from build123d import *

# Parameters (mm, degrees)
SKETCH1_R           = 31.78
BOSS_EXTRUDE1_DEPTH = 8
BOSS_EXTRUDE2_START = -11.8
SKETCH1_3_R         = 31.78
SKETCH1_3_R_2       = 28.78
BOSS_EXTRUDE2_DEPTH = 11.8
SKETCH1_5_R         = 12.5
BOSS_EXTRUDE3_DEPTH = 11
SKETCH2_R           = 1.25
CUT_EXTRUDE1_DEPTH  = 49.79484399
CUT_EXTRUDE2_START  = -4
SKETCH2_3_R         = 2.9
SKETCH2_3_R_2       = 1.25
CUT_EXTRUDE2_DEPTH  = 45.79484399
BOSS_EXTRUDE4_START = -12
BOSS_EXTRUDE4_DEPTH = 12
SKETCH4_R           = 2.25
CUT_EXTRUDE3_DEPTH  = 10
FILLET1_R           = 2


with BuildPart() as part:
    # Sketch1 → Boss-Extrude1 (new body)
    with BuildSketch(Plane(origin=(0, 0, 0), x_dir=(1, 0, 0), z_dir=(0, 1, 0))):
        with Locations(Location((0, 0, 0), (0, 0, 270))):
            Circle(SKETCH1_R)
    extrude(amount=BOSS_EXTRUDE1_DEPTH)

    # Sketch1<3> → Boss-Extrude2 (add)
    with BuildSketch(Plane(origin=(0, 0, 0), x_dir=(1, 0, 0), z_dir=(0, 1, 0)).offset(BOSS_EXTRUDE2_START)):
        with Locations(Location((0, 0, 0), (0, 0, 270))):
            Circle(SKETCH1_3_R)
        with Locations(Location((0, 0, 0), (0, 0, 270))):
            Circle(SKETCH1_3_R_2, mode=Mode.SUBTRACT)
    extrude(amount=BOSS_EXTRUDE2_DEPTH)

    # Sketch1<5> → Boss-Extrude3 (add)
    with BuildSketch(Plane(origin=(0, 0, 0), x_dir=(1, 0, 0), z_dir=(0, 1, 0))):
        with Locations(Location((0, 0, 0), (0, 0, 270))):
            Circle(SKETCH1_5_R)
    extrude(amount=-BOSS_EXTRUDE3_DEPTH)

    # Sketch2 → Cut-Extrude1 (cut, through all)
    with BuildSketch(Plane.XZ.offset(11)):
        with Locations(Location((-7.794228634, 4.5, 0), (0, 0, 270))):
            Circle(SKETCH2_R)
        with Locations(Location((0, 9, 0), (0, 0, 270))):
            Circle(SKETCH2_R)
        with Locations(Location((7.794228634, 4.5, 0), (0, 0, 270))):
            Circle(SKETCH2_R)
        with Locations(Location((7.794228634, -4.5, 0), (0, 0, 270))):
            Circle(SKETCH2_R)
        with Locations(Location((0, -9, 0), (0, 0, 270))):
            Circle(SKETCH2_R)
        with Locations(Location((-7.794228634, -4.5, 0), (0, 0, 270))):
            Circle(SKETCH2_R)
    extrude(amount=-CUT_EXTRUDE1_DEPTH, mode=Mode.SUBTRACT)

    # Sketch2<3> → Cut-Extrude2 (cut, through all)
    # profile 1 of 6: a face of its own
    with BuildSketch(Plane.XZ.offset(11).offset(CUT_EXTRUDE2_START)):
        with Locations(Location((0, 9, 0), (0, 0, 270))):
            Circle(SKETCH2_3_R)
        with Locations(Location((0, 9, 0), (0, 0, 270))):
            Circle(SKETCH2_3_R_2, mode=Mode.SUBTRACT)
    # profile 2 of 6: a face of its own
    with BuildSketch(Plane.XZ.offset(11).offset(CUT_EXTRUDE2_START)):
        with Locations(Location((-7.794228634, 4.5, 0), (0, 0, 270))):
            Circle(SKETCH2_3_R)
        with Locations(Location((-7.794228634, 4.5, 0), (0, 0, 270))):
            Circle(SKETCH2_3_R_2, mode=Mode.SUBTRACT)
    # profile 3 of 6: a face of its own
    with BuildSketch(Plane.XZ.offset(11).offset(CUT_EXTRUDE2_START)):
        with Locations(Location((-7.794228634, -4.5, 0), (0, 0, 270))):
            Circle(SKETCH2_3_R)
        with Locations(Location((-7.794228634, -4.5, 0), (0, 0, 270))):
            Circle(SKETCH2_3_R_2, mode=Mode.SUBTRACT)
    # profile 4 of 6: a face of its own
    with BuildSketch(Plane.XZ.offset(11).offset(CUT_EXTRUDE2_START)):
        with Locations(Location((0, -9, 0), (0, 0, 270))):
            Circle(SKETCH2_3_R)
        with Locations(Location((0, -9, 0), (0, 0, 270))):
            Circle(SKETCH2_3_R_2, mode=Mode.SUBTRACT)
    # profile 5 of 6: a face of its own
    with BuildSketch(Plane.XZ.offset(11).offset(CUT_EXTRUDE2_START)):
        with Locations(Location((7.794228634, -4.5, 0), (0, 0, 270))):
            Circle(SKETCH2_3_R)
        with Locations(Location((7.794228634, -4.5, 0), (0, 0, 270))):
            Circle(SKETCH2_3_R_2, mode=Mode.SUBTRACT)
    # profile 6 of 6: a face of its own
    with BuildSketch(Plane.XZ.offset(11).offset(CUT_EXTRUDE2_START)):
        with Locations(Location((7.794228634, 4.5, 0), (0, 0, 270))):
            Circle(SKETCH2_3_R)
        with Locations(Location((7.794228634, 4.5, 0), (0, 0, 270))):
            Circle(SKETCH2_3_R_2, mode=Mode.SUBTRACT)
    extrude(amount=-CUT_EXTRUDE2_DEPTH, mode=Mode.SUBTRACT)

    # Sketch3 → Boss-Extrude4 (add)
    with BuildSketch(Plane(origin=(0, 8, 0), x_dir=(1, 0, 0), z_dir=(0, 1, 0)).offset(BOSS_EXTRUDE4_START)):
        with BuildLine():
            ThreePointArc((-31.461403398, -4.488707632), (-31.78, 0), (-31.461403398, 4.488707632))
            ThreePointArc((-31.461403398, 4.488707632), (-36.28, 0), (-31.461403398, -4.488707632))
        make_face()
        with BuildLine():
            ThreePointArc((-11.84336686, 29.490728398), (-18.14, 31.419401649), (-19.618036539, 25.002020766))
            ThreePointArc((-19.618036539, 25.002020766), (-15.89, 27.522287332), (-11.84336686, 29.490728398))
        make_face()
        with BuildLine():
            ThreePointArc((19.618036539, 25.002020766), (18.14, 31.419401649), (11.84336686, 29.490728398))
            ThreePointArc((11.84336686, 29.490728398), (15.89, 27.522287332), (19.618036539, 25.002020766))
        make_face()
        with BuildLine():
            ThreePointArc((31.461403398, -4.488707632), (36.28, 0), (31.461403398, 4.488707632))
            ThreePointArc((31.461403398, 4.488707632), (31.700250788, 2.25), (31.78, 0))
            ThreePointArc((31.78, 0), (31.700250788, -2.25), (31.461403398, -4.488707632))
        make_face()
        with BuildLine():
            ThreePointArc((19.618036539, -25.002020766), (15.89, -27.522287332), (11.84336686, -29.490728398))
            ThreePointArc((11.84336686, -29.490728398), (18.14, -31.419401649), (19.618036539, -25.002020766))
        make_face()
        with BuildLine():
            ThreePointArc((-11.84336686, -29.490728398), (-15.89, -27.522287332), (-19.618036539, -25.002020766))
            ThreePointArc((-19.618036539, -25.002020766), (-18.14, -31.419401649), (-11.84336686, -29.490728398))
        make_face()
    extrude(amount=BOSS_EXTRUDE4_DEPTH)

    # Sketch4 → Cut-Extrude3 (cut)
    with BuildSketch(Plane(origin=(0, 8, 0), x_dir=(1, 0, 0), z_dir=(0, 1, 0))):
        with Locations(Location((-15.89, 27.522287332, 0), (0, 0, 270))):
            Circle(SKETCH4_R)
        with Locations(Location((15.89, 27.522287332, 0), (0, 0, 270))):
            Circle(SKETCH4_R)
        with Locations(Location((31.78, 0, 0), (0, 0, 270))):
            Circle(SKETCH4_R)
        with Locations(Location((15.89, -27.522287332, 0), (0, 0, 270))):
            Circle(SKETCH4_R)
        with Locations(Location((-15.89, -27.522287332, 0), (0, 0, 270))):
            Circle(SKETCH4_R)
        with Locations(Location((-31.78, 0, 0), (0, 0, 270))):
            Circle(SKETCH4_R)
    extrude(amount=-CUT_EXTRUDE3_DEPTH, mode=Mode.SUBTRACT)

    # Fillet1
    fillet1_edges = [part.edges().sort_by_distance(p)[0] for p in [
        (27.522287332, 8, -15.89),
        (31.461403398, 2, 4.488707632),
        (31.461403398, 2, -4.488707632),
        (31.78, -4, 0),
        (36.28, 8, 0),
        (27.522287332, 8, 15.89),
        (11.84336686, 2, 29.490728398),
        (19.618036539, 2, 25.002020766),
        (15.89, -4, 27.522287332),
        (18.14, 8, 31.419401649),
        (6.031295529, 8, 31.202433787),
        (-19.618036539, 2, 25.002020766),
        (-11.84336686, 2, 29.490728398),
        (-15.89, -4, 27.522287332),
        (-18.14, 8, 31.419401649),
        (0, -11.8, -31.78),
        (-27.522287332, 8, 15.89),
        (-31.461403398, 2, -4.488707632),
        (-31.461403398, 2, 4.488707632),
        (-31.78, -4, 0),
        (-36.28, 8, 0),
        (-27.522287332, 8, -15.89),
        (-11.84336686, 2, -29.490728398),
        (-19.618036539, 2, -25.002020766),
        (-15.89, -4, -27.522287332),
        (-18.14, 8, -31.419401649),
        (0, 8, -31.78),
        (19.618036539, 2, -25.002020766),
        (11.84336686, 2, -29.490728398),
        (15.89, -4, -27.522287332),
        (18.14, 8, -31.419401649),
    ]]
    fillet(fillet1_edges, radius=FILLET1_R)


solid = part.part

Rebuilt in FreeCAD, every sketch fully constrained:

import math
import FreeCAD as App
import Part
import Sketcher
Q = App.Units.Quantity


def edges_at(feature, points):
    """Names of the edges that pass closest to the given points."""
    edges = feature.Shape.Edges
    near = lambda p: min(range(len(edges)), key=lambda i: edges[i].distToShape(Part.Vertex(*p))[0])
    return sorted({f"Edge{near(p) + 1}" for p in points})

doc = App.newDocument("Part")
body = doc.addObject("PartDesign::Body", "Body")

# Sketch on XZ plane
sketch1 = body.newObject("Sketcher::SketchObject", "Sketch")
sketch1.AttachmentSupport = (doc.getObject("XZ_Plane"), [""])
sketch1.MapMode = "FlatFace"
sketch1.addGeometry(Part.Circle(App.Vector(0, 0, 0), App.Vector(0, 0, 1), 32), False)
sketch1.addConstraint(Sketcher.Constraint("Coincident", 0, 3, -1, 1))
sketch1.addConstraint(Sketcher.Constraint("Diameter", 0, Q("63.56 mm")))
pad1 = body.newObject("PartDesign::Pad", "Pad")
pad1.Profile = sketch1
pad1.Length = 8
pad1.Reversed = True

# Sketch on XZ plane
sketch2 = body.newObject("Sketcher::SketchObject", "Sketch001")
sketch2.AttachmentSupport = (doc.getObject("XZ_Plane"), [""])
sketch2.MapMode = "FlatFace"
sketch2.AttachmentOffset = App.Placement(App.Vector(0, 0, 11.8), App.Rotation())
sketch2.addGeometry(Part.Circle(App.Vector(0, 0, 0), App.Vector(0, 0, 1), 32), False)
sketch2.addGeometry(Part.Circle(App.Vector(0, 0, 0), App.Vector(0, 0, 1), 29), False)
sketch2.addConstraint(Sketcher.Constraint("Coincident", 0, 3, -1, 1))
sketch2.addConstraint(Sketcher.Constraint("Coincident", 1, 3, -1, 1))
sketch2.addConstraint(Sketcher.Constraint("Diameter", 0, Q("63.56 mm")))
sketch2.addConstraint(Sketcher.Constraint("Diameter", 1, Q("57.56 mm")))
pad2 = body.newObject("PartDesign::Pad", "Pad001")
pad2.Profile = sketch2
pad2.Length = 11.8
pad2.Reversed = True

# Sketch on XZ plane
sketch3 = body.newObject("Sketcher::SketchObject", "Sketch002")
sketch3.AttachmentSupport = (doc.getObject("XZ_Plane"), [""])
sketch3.MapMode = "FlatFace"
sketch3.addGeometry(Part.Circle(App.Vector(0, 0, 0), App.Vector(0, 0, 1), 12), False)
sketch3.addConstraint(Sketcher.Constraint("Coincident", 0, 3, -1, 1))
sketch3.addConstraint(Sketcher.Constraint("Diameter", 0, Q("25 mm")))
pad3 = body.newObject("PartDesign::Pad", "Pad002")
pad3.Profile = sketch3
pad3.Length = 11

# Sketch on XZ plane
sketch4 = body.newObject("Sketcher::SketchObject", "Sketch003")
sketch4.AttachmentSupport = (doc.getObject("XZ_Plane"), [""])
sketch4.MapMode = "FlatFace"
sketch4.AttachmentOffset = App.Placement(App.Vector(0, 0, 11), App.Rotation())
sketch4.addGeometry(Part.Circle(App.Vector(-7.8, 4.5, 0), App.Vector(0, 0, 1), 1.2), False)
sketch4.addGeometry(Part.Circle(App.Vector(0, 9, 0), App.Vector(0, 0, 1), 1.2), False)
sketch4.addGeometry(Part.Circle(App.Vector(7.8, 4.5, 0), App.Vector(0, 0, 1), 1.2), False)
sketch4.addGeometry(Part.Circle(App.Vector(7.8, -4.5, 0), App.Vector(0, 0, 1), 1.2), False)
sketch4.addGeometry(Part.Circle(App.Vector(0, -9, 0), App.Vector(0, 0, 1), 1.2), False)
sketch4.addGeometry(Part.Circle(App.Vector(-7.8, -4.5, 0), App.Vector(0, 0, 1), 1.2), False)
sketch4.addConstraint(Sketcher.Constraint("Equal", 0, 1))
sketch4.addConstraint(Sketcher.Constraint("Equal", 1, 2))
sketch4.addConstraint(Sketcher.Constraint("Equal", 2, 3))
sketch4.addConstraint(Sketcher.Constraint("Equal", 3, 4))
sketch4.addConstraint(Sketcher.Constraint("Equal", 4, 5))
sketch4.addConstraint(Sketcher.Constraint("Symmetric", 0, 3, 3, 3, -1, 1))
sketch4.addConstraint(Sketcher.Constraint("Symmetric", 1, 3, 4, 3, -1, 1))
sketch4.addConstraint(Sketcher.Constraint("Symmetric", 2, 3, 5, 3, -1, 1))
sketch4.addConstraint(Sketcher.Constraint("Symmetric", 0, 3, 2, 3, -2))
sketch4.addConstraint(Sketcher.Constraint("PointOnObject", 1, 3, -2))
sketch4.addConstraint(Sketcher.Constraint("Diameter", 0, Q("2.5 mm")))
sketch4.addConstraint(Sketcher.Constraint("DistanceY", -1, 1, 1, 3, Q("9 mm")))
sketch4.addConstraint(Sketcher.Constraint("DistanceY", 3, 3, 2, 3, Q("9 mm")))
sketch4.addConstraint(Sketcher.Constraint("DistanceX", 0, 3, -1, 1, Q("7.794229 mm")))
pocket1 = body.newObject("PartDesign::Pocket", "Pocket")
pocket1.Profile = sketch4
pocket1.Type = "ThroughAll"

# Sketch on XZ plane
sketch5 = body.newObject("Sketcher::SketchObject", "Sketch004")
sketch5.AttachmentSupport = (doc.getObject("XZ_Plane"), [""])
sketch5.MapMode = "FlatFace"
sketch5.AttachmentOffset = App.Placement(App.Vector(0, 0, 7), App.Rotation())
sketch5.addGeometry(Part.Circle(App.Vector(0, 9, 0), App.Vector(0, 0, 1), 2.9), False)
sketch5.addGeometry(Part.Circle(App.Vector(0, 9, 0), App.Vector(0, 0, 1), 1.2), False)
sketch5.addGeometry(Part.Circle(App.Vector(-7.8, 4.5, 0), App.Vector(0, 0, 1), 2.9), False)
sketch5.addGeometry(Part.Circle(App.Vector(-7.8, 4.5, 0), App.Vector(0, 0, 1), 1.2), False)
sketch5.addGeometry(Part.Circle(App.Vector(-7.8, -4.5, 0), App.Vector(0, 0, 1), 2.9), False)
sketch5.addGeometry(Part.Circle(App.Vector(-7.8, -4.5, 0), App.Vector(0, 0, 1), 1.2), False)
sketch5.addGeometry(Part.Circle(App.Vector(0, -9, 0), App.Vector(0, 0, 1), 2.9), False)
sketch5.addGeometry(Part.Circle(App.Vector(0, -9, 0), App.Vector(0, 0, 1), 1.2), False)
sketch5.addGeometry(Part.Circle(App.Vector(7.8, -4.5, 0), App.Vector(0, 0, 1), 2.9), False)
sketch5.addGeometry(Part.Circle(App.Vector(7.8, -4.5, 0), App.Vector(0, 0, 1), 1.2), False)
sketch5.addGeometry(Part.Circle(App.Vector(7.8, 4.5, 0), App.Vector(0, 0, 1), 2.9), False)
sketch5.addGeometry(Part.Circle(App.Vector(7.8, 4.5, 0), App.Vector(0, 0, 1), 1.2), False)
sketch5.addConstraint(Sketcher.Constraint("Coincident", 1, 3, 0, 3))
sketch5.addConstraint(Sketcher.Constraint("Coincident", 3, 3, 2, 3))
sketch5.addConstraint(Sketcher.Constraint("Coincident", 5, 3, 4, 3))
sketch5.addConstraint(Sketcher.Constraint("Coincident", 7, 3, 6, 3))
sketch5.addConstraint(Sketcher.Constraint("Coincident", 9, 3, 8, 3))
sketch5.addConstraint(Sketcher.Constraint("Coincident", 11, 3, 10, 3))
sketch5.addConstraint(Sketcher.Constraint("Equal", 0, 2))
sketch5.addConstraint(Sketcher.Constraint("Equal", 1, 3))
sketch5.addConstraint(Sketcher.Constraint("Equal", 2, 4))
sketch5.addConstraint(Sketcher.Constraint("Equal", 3, 5))
sketch5.addConstraint(Sketcher.Constraint("Equal", 4, 6))
sketch5.addConstraint(Sketcher.Constraint("Equal", 5, 7))
sketch5.addConstraint(Sketcher.Constraint("Equal", 6, 8))
sketch5.addConstraint(Sketcher.Constraint("Equal", 7, 9))
sketch5.addConstraint(Sketcher.Constraint("Equal", 8, 10))
sketch5.addConstraint(Sketcher.Constraint("Equal", 9, 11))
sketch5.addConstraint(Sketcher.Constraint("Symmetric", 0, 3, 6, 3, -1, 1))
sketch5.addConstraint(Sketcher.Constraint("Symmetric", 2, 3, 8, 3, -1, 1))
sketch5.addConstraint(Sketcher.Constraint("Symmetric", 4, 3, 10, 3, -1, 1))
sketch5.addConstraint(Sketcher.Constraint("Symmetric", 4, 3, 8, 3, -2))
sketch5.addConstraint(Sketcher.Constraint("PointOnObject", 0, 3, -2))
sketch5.addConstraint(Sketcher.Constraint("Diameter", 0, Q("5.8 mm")))
sketch5.addConstraint(Sketcher.Constraint("Diameter", 1, Q("2.5 mm")))
sketch5.addConstraint(Sketcher.Constraint("DistanceY", -1, 1, 0, 3, Q("9 mm")))
sketch5.addConstraint(Sketcher.Constraint("DistanceY", 4, 3, 2, 3, Q("9 mm")))
sketch5.addConstraint(Sketcher.Constraint("DistanceX", 2, 3, -1, 1, Q("7.794229 mm")))
pocket2 = body.newObject("PartDesign::Pocket", "Pocket001")
pocket2.Profile = sketch5
pocket2.Length = 45.794844

# Sketch on XZ plane
sketch6 = body.newObject("Sketcher::SketchObject", "Sketch005")
sketch6.AttachmentSupport = (doc.getObject("XZ_Plane"), [""])
sketch6.MapMode = "FlatFace"
sketch6.AttachmentOffset = App.Placement(App.Vector(0, 0, 4), App.Rotation())
sketch6.addGeometry(Part.ArcOfCircle(Part.Circle(App.Vector(0, 0, 0), App.Vector(0, 0, 1), 31.8), math.radians(171.88), math.radians(188.12)), False)
sketch6.addGeometry(Part.ArcOfCircle(Part.Circle(App.Vector(-31.8, 0, 0), App.Vector(0, 0, 1), 4.5), math.radians(86), math.radians(274)), False)
sketch6.addGeometry(Part.ArcOfCircle(Part.Circle(App.Vector(-15.9, -27.5, 0), App.Vector(0, 0, 1), 4.5), math.radians(146), math.radians(334)), False)
sketch6.addGeometry(Part.ArcOfCircle(Part.Circle(App.Vector(0, 0, 0), App.Vector(0, 0, 1), 31.8), math.radians(-128.12), math.radians(-111.88)), False)
sketch6.addGeometry(Part.ArcOfCircle(Part.Circle(App.Vector(15.9, -27.5, 0), App.Vector(0, 0, 1), 4.5), math.radians(-154), math.radians(34)), False)
sketch6.addGeometry(Part.ArcOfCircle(Part.Circle(App.Vector(0, 0, 0), App.Vector(0, 0, 1), 31.8), math.radians(-68.12), math.radians(-51.88)), False)
sketch6.addGeometry(Part.ArcOfCircle(Part.Circle(App.Vector(31.8, 0, 0), App.Vector(0, 0, 1), 4.5), math.radians(-94), math.radians(94)), False)
sketch6.addGeometry(Part.ArcOfCircle(Part.Circle(App.Vector(0, 0, 0), App.Vector(0, 0, 1), 31.8), math.radians(-8.12), math.radians(0)), False)
sketch6.addGeometry(Part.ArcOfCircle(Part.Circle(App.Vector(0, 0, 0), App.Vector(0, 0, 1), 31.8), math.radians(0), math.radians(8.12)), False)
sketch6.addGeometry(Part.ArcOfCircle(Part.Circle(App.Vector(0, 0, 0), App.Vector(0, 0, 1), 31.8), math.radians(51.88), math.radians(68.12)), False)
sketch6.addGeometry(Part.ArcOfCircle(Part.Circle(App.Vector(15.9, 27.5, 0), App.Vector(0, 0, 1), 4.5), math.radians(-34), math.radians(154)), False)
sketch6.addGeometry(Part.ArcOfCircle(Part.Circle(App.Vector(0, 0, 0), App.Vector(0, 0, 1), 31.8), math.radians(111.88), math.radians(128.12)), False)
sketch6.addGeometry(Part.ArcOfCircle(Part.Circle(App.Vector(-15.9, 27.5, 0), App.Vector(0, 0, 1), 4.5), math.radians(26), math.radians(214)), False)
sketch6.addConstraint(Sketcher.Constraint("Coincident", 0, 1, 1, 1))
sketch6.addConstraint(Sketcher.Constraint("Coincident", 1, 2, 0, 2))
sketch6.addConstraint(Sketcher.Constraint("Coincident", 2, 1, 3, 1))
sketch6.addConstraint(Sketcher.Constraint("Coincident", 3, 2, 2, 2))
sketch6.addConstraint(Sketcher.Constraint("Coincident", 4, 1, 5, 1))
sketch6.addConstraint(Sketcher.Constraint("Coincident", 5, 2, 4, 2))
sketch6.addConstraint(Sketcher.Constraint("Coincident", 6, 1, 7, 1))
sketch6.addConstraint(Sketcher.Constraint("Tangent", 7, 2, 8, 1))
sketch6.addConstraint(Sketcher.Constraint("Coincident", 8, 2, 6, 2))
sketch6.addConstraint(Sketcher.Constraint("Coincident", 9, 1, 10, 1))
sketch6.addConstraint(Sketcher.Constraint("Coincident", 10, 2, 9, 2))
sketch6.addConstraint(Sketcher.Constraint("Coincident", 11, 1, 12, 1))
sketch6.addConstraint(Sketcher.Constraint("Coincident", 12, 2, 11, 2))
sketch6.addConstraint(Sketcher.Constraint("Coincident", 0, 3, -1, 1))
sketch6.addConstraint(Sketcher.Constraint("Coincident", 3, 3, -1, 1))
sketch6.addConstraint(Sketcher.Constraint("Coincident", 5, 3, -1, 1))
sketch6.addConstraint(Sketcher.Constraint("Coincident", 7, 3, -1, 1))
sketch6.addConstraint(Sketcher.Constraint("Coincident", 9, 3, -1, 1))
sketch6.addConstraint(Sketcher.Constraint("Coincident", 11, 3, -1, 1))
sketch6.addConstraint(Sketcher.Constraint("Coincident", 7, 2, 6, 3))
sketch6.addConstraint(Sketcher.Constraint("Equal", 1, 2))
sketch6.addConstraint(Sketcher.Constraint("Equal", 0, 3))
sketch6.addConstraint(Sketcher.Constraint("Equal", 2, 4))
sketch6.addConstraint(Sketcher.Constraint("Equal", 3, 5))
sketch6.addConstraint(Sketcher.Constraint("Equal", 4, 6))
sketch6.addConstraint(Sketcher.Constraint("Equal", 5, 7))
sketch6.addConstraint(Sketcher.Constraint("Equal", 7, 8))
sketch6.addConstraint(Sketcher.Constraint("Equal", 8, 9))
sketch6.addConstraint(Sketcher.Constraint("Equal", 6, 10))
sketch6.addConstraint(Sketcher.Constraint("Equal", 9, 11))
sketch6.addConstraint(Sketcher.Constraint("Equal", 10, 12))
sketch6.addConstraint(Sketcher.Constraint("Symmetric", 1, 3, 6, 3, -1, 1))
sketch6.addConstraint(Sketcher.Constraint("Symmetric", 2, 3, 10, 3, -1, 1))
sketch6.addConstraint(Sketcher.Constraint("Symmetric", 4, 3, 12, 3, -1, 1))
sketch6.addConstraint(Sketcher.Constraint("Symmetric", 2, 3, 4, 3, -2))
sketch6.addConstraint(Sketcher.Constraint("PointOnObject", 1, 3, -1))
sketch6.addConstraint(Sketcher.Constraint("Radius", 1, Q("4.5 mm")))
sketch6.addConstraint(Sketcher.Constraint("Radius", 0, Q("31.78 mm")))
sketch6.addConstraint(Sketcher.Constraint("DistanceX", 2, 3, -1, 1, Q("15.89 mm")))
sketch6.addConstraint(Sketcher.Constraint("DistanceY", 2, 1, -1, 1, Q("25.002021 mm")))
pad4 = body.newObject("PartDesign::Pad", "Pad003")
pad4.Profile = sketch6
pad4.Length = 12
pad4.Reversed = True

# Sketch on XZ plane
sketch7 = body.newObject("Sketcher::SketchObject", "Sketch006")
sketch7.AttachmentSupport = (doc.getObject("XZ_Plane"), [""])
sketch7.MapMode = "FlatFace"
sketch7.AttachmentOffset = App.Placement(App.Vector(0, 0, -8), App.Rotation())
sketch7.addGeometry(Part.Circle(App.Vector(-15.9, -27.5, 0), App.Vector(0, 0, 1), 2.2), False)
sketch7.addGeometry(Part.Circle(App.Vector(15.9, -27.5, 0), App.Vector(0, 0, 1), 2.2), False)
sketch7.addGeometry(Part.Circle(App.Vector(31.8, 0, 0), App.Vector(0, 0, 1), 2.2), False)
sketch7.addGeometry(Part.Circle(App.Vector(15.9, 27.5, 0), App.Vector(0, 0, 1), 2.2), False)
sketch7.addGeometry(Part.Circle(App.Vector(-15.9, 27.5, 0), App.Vector(0, 0, 1), 2.2), False)
sketch7.addGeometry(Part.Circle(App.Vector(-31.8, 0, 0), App.Vector(0, 0, 1), 2.2), False)
sketch7.addConstraint(Sketcher.Constraint("Equal", 0, 1))
sketch7.addConstraint(Sketcher.Constraint("Equal", 1, 2))
sketch7.addConstraint(Sketcher.Constraint("Equal", 2, 3))
sketch7.addConstraint(Sketcher.Constraint("Equal", 3, 4))
sketch7.addConstraint(Sketcher.Constraint("Equal", 4, 5))
sketch7.addConstraint(Sketcher.Constraint("Symmetric", 0, 3, 3, 3, -1, 1))
sketch7.addConstraint(Sketcher.Constraint("Symmetric", 1, 3, 4, 3, -1, 1))
sketch7.addConstraint(Sketcher.Constraint("Symmetric", 2, 3, 5, 3, -1, 1))
sketch7.addConstraint(Sketcher.Constraint("Symmetric", 0, 3, 1, 3, -2))
sketch7.addConstraint(Sketcher.Constraint("PointOnObject", 2, 3, -1))
sketch7.addConstraint(Sketcher.Constraint("Diameter", 0, Q("4.5 mm")))
sketch7.addConstraint(Sketcher.Constraint("DistanceX", 0, 3, -1, 1, Q("15.89 mm")))
sketch7.addConstraint(Sketcher.Constraint("DistanceX", -1, 1, 2, 3, Q("31.78 mm")))
sketch7.addConstraint(Sketcher.Constraint("DistanceY", 0, 3, -1, 1, Q("27.522287 mm")))
pocket3 = body.newObject("PartDesign::Pocket", "Pocket002")
pocket3.Profile = sketch7
pocket3.Length = 10
pocket3.Reversed = True
doc.recompute()

fillet = body.newObject("PartDesign::Fillet", "Fillet")
fillet.Base = (pocket3, edges_at(pocket3, [
    (27.522, 8, -15.89),
    (31.461, 2, 4.489),
    (31.461, 2, -4.489),
    (31.7, -4, -2.25),
    (36.28, 8, 0),
    (27.522, 8, 15.89),
    (11.843, 2, 29.491),
    (19.618, 2, 25.002),
    (15.89, -4, 27.522),
    (18.14, 8, 31.419),
    (6.031, 8, 31.202),
    (-19.618, 2, 25.002),
    (-11.843, 2, 29.491),
    (-15.89, -4, 27.522),
    (-18.14, 8, 31.419),
    (0, -11.8, -31.78),
    (-27.522, 8, 15.89),
    (-31.461, 2, -4.489),
    (-31.461, 2, 4.489),
    (-31.78, -4, 0),
    (-36.28, 8, 0),
    (-27.522, 8, -15.89),
    (-11.843, 2, -29.491),
    (-19.618, 2, -25.002),
    (-15.89, -4, -27.522),
    (-18.14, 8, -31.419),
    (0, 8, -31.78),
    (19.618, 2, -25.002),
    (11.843, 2, -29.491),
    (15.89, -4, -27.522),
    (18.14, 8, -31.419),
]))
fillet.Radius = 2

doc.recompute()
